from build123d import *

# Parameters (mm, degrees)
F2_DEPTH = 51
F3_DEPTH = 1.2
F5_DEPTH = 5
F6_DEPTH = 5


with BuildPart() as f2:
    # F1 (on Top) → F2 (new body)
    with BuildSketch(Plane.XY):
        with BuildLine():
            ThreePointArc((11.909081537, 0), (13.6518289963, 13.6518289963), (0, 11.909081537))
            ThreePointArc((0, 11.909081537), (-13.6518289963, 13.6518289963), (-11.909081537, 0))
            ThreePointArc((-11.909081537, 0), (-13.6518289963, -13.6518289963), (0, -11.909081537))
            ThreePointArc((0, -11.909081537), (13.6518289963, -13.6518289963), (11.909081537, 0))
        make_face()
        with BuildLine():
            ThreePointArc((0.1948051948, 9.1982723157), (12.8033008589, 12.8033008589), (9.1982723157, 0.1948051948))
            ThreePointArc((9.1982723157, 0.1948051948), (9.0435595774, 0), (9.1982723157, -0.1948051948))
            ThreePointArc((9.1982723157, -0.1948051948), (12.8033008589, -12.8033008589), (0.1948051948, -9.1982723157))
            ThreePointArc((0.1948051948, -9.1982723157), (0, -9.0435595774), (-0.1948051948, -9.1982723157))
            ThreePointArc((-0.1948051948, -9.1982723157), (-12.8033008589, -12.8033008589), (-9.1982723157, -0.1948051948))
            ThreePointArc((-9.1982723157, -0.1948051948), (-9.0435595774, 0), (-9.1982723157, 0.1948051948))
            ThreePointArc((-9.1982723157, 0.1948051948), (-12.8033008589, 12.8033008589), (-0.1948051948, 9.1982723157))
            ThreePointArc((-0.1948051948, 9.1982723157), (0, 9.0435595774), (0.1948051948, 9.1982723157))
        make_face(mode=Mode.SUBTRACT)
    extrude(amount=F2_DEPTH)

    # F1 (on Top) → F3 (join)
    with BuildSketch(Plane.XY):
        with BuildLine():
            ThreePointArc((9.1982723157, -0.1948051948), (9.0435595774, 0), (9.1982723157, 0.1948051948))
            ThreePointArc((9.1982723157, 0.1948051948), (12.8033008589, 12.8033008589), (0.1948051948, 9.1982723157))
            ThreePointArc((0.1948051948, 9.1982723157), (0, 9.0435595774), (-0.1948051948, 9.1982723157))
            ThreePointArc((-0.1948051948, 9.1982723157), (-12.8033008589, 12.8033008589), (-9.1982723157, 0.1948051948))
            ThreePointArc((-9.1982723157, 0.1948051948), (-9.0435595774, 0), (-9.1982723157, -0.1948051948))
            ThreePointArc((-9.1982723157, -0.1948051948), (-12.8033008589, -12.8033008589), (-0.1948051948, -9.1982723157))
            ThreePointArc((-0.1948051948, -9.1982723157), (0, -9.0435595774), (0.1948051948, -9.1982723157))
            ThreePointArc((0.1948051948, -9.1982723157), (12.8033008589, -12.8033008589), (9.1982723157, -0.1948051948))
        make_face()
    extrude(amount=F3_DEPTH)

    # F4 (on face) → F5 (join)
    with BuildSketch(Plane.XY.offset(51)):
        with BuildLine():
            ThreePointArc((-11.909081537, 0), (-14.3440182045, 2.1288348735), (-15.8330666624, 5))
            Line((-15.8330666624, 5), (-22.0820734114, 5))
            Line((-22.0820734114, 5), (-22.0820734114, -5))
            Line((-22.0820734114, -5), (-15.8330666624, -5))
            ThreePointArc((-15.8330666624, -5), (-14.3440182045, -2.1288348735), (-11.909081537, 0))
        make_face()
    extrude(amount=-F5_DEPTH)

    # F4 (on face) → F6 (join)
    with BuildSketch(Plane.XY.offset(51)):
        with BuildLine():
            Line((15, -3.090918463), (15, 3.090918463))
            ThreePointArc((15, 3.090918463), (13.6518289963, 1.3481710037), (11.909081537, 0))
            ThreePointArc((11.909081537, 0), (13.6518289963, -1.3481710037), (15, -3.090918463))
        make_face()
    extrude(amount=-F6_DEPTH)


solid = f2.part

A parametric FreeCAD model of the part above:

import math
import FreeCAD as App
import Part
import Sketcher
from FreeCAD import Vector
Q = App.Units.Quantity

doc = App.newDocument("Part")
body = doc.addObject("PartDesign::Body", "Body")

# Sketch on XY plane
sketch1 = body.newObject("Sketcher::SketchObject", "Sketch")
sketch1.AttachmentSupport = (doc.getObject("XY_Plane"), [""])
sketch1.MapMode = "FlatFace"
sketch1.addGeometry([
    Part.ArcOfCircle(Part.Circle(Vector(7.5, 7.5, 0), Vector(0, 0, 1), 8.7), math.radians(-59.549686), math.radians(149.549686)),  # 0
    Part.ArcOfCircle(Part.Circle(Vector(-7.5, 7.5, 0), Vector(0, 0, 1), 8.7), math.radians(30.450314), math.radians(239.549686)),  # 1
    Part.ArcOfCircle(Part.Circle(Vector(-7.5, -7.5, 0), Vector(0, 0, 1), 8.7), math.radians(120.450314), math.radians(329.549686)),  # 2
    Part.ArcOfCircle(Part.Circle(Vector(7.5, -7.5, 0), Vector(0, 0, 1), 8.7), math.radians(-149.549686), math.radians(59.549686)),  # 3
    Part.ArcOfCircle(Part.Circle(Vector(0, 9.24356, 0), Vector(0, 0, 1), 0.2), math.radians(-166.912648), math.radians(-13.087352)),  # 4
    Part.ArcOfCircle(Part.Circle(Vector(7.5, 7.5, 0), Vector(0, 0, 1), 7.5), math.radians(-76.912647), math.radians(166.912647)),  # 5
    Part.ArcOfCircle(Part.Circle(Vector(9.24356, 0, 0), Vector(0, 0, 1), 0.2), math.radians(103.087352), math.radians(256.912648)),  # 6
    Part.ArcOfCircle(Part.Circle(Vector(7.5, -7.5, 0), Vector(0, 0, 1), 7.5), math.radians(-166.912647), math.radians(76.912647)),  # 7
    Part.ArcOfCircle(Part.Circle(Vector(0, -9.24356, 0), Vector(0, 0, 1), 0.2), math.radians(13.087352), math.radians(166.912648)),  # 8
    Part.ArcOfCircle(Part.Circle(Vector(-7.5, -7.5, 0), Vector(0, 0, 1), 7.5), math.radians(103.087353), math.radians(346.912647)),  # 9
    Part.ArcOfCircle(Part.Circle(Vector(-9.24356, 0, 0), Vector(0, 0, 1), 0.2), math.radians(-76.912648), math.radians(76.912648)),  # 10
    Part.ArcOfCircle(Part.Circle(Vector(-7.5, 7.5, 0), Vector(0, 0, 1), 7.5), math.radians(13.087353), math.radians(256.912647)),  # 11
], False)
sketch1.addConstraint([
    Sketcher.Constraint("Coincident", 0, 2, 1, 1),
    Sketcher.Constraint("Coincident", 1, 2, 2, 1),
    Sketcher.Constraint("Coincident", 2, 2, 3, 1),
    Sketcher.Constraint("Coincident", 3, 2, 0, 1),
    Sketcher.Constraint("Tangent", 4, 2, 5, 2),
    Sketcher.Constraint("Tangent", 5, 1, 6, 1),
    Sketcher.Constraint("Tangent", 6, 2, 7, 2),
    Sketcher.Constraint("Tangent", 7, 1, 8, 1),
    Sketcher.Constraint("Tangent", 8, 2, 9, 2),
    Sketcher.Constraint("Tangent", 9, 1, 10, 1),
    Sketcher.Constraint("Tangent", 10, 2, 11, 2),
    Sketcher.Constraint("Tangent", 11, 1, 4, 1),
    Sketcher.Constraint("Coincident", 5, 3, 0, 3),
    Sketcher.Constraint("Coincident", 7, 3, 3, 3),
    Sketcher.Constraint("Coincident", 9, 3, 2, 3),
    Sketcher.Constraint("Coincident", 11, 3, 1, 3),
    Sketcher.Constraint("Equal", 0, 1),
    Sketcher.Constraint("Equal", 1, 2),
    Sketcher.Constraint("Equal", 2, 3),
    Sketcher.Constraint("Equal", 4, 6),
    Sketcher.Constraint("Equal", 5, 7),
    Sketcher.Constraint("Equal", 6, 8),
    Sketcher.Constraint("Equal", 7, 9),
    Sketcher.Constraint("Equal", 8, 10),
    Sketcher.Constraint("Equal", 9, 11),
    Sketcher.Constraint("Symmetric", 0, 3, 2, 3, -1, 1),
    Sketcher.Constraint("Symmetric", 1, 3, 3, 3, -1, 1),
    Sketcher.Constraint("Symmetric", 0, 3, 1, 3, -2),
    Sketcher.Constraint("Radius", 0, Q("8.7 mm")),
    Sketcher.Constraint("Radius", 4, Q("0.2 mm")),
    Sketcher.Constraint("Radius", 5, Q("7.5 mm")),
    Sketcher.Constraint("DistanceX", 1, 3, 0, 3, Q("15 mm")),
    Sketcher.Constraint("DistanceY", 2, 3, 1, 3, Q("15 mm")),
])
pad1 = body.newObject("PartDesign::Pad", "Pad")
pad1.Profile = sketch1
pad1.Length = 51

# Sketch on XY plane
sketch2 = body.newObject("Sketcher::SketchObject", "Sketch001")
sketch2.AttachmentSupport = (doc.getObject("XY_Plane"), [""])
sketch2.MapMode = "FlatFace"
sketch2.addGeometry([
    Part.ArcOfCircle(Part.Circle(Vector(9.24356, 0, 0), Vector(0, 0, 1), 0.2), math.radians(103.087352), math.radians(256.912648)),  # 0
    Part.ArcOfCircle(Part.Circle(Vector(7.5, 7.5, 0), Vector(0, 0, 1), 7.5), math.radians(-76.912647), math.radians(166.912647)),  # 1
    Part.ArcOfCircle(Part.Circle(Vector(0, 9.24356, 0), Vector(0, 0, 1), 0.2), math.radians(-166.912648), math.radians(-13.087352)),  # 2
    Part.ArcOfCircle(Part.Circle(Vector(-7.5, 7.5, 0), Vector(0, 0, 1), 7.5), math.radians(13.087353), math.radians(256.912647)),  # 3
    Part.ArcOfCircle(Part.Circle(Vector(-9.24356, 0, 0), Vector(0, 0, 1), 0.2), math.radians(-76.912648), math.radians(76.912648)),  # 4
    Part.ArcOfCircle(Part.Circle(Vector(-7.5, -7.5, 0), Vector(0, 0, 1), 7.5), math.radians(103.087353), math.radians(346.912647)),  # 5
    Part.ArcOfCircle(Part.Circle(Vector(0, -9.24356, 0), Vector(0, 0, 1), 0.2), math.radians(13.087352), math.radians(166.912648)),  # 6
    Part.ArcOfCircle(Part.Circle(Vector(7.5, -7.5, 0), Vector(0, 0, 1), 7.5), math.radians(-166.912647), math.radians(76.912647)),  # 7
], False)
sketch2.addConstraint([
    Sketcher.Constraint("Tangent", 0, 1, 1, 1),
    Sketcher.Constraint("Tangent", 1, 2, 2, 2),
    Sketcher.Constraint("Tangent", 2, 1, 3, 1),
    Sketcher.Constraint("Tangent", 3, 2, 4, 2),
    Sketcher.Constraint("Tangent", 4, 1, 5, 1),
    Sketcher.Constraint("Tangent", 5, 2, 6, 2),
    Sketcher.Constraint("Tangent", 6, 1, 7, 1),
    Sketcher.Constraint("Tangent", 7, 2, 0, 2),
    Sketcher.Constraint("Equal", 0, 2),
    Sketcher.Constraint("Equal", 1, 3),
    Sketcher.Constraint("Equal", 2, 4),
    Sketcher.Constraint("Equal", 3, 5),
    Sketcher.Constraint("Equal", 4, 6),
    Sketcher.Constraint("Equal", 5, 7),
    Sketcher.Constraint("Symmetric", 0, 3, 4, 3, -1, 1),
    Sketcher.Constraint("Symmetric", 2, 3, 6, 3, -1, 1),
    Sketcher.Constraint("Symmetric", 1, 3, 3, 3, -2),
    Sketcher.Constraint("Radius", 0, Q("0.2 mm")),
    Sketcher.Constraint("Radius", 1, Q("7.5 mm")),
    Sketcher.Constraint("DistanceX", 3, 3, 1, 3, Q("15 mm")),
    Sketcher.Constraint("DistanceY", 5, 3, 3, 3, Q("15 mm")),
])
pad2 = body.newObject("PartDesign::Pad", "Pad001")
pad2.Profile = sketch2
pad2.Length = 1.2

# Sketch on XY plane
sketch3 = body.newObject("Sketcher::SketchObject", "Sketch002")
sketch3.AttachmentSupport = (doc.getObject("XY_Plane"), [""])
sketch3.MapMode = "FlatFace"
sketch3.AttachmentOffset = App.Placement(Vector(0, 0, 51), App.Rotation())
sketch3.addGeometry([
    Part.ArcOfCircle(Part.Circle(Vector(-7.5, 7.5, 0), Vector(0, 0, 1), 8.7), math.radians(-163.300251), math.radians(-120.450314)),  # 0
    Part.LineSegment(Vector(-15.833067, 5, 0), Vector(-22.082073, 5, 0)),  # 1
    Part.LineSegment(Vector(-22.082073, 5, 0), Vector(-22.082073, -5, 0)),  # 2
    Part.LineSegment(Vector(-22.082073, -5, 0), Vector(-15.833067, -5, 0)),  # 3
    Part.ArcOfCircle(Part.Circle(Vector(-7.5, -7.5, 0), Vector(0, 0, 1), 8.7), math.radians(120.450314), math.radians(163.300251)),  # 4
], False)
sketch3.addConstraint([
    Sketcher.Constraint("Coincident", 0, 1, 1, 1),
    Sketcher.Constraint("Coincident", 1, 2, 2, 1),
    Sketcher.Constraint("Coincident", 2, 2, 3, 1),
    Sketcher.Constraint("Coincident", 3, 2, 4, 2),
    Sketcher.Constraint("Coincident", 4, 1, 0, 2),
    Sketcher.Constraint("Horizontal", 1),
    Sketcher.Constraint("Vertical", 2),
    Sketcher.Constraint("Horizontal", 3),
    Sketcher.Constraint("Equal", 0, 4),
    Sketcher.Constraint("Symmetric", 0, 3, 4, 3, -1),
    Sketcher.Constraint("Vertical", 0, 1, 3, 2),
    Sketcher.Constraint("Radius", 0, Q("8.7 mm")),
    Sketcher.Constraint("DistanceY", 2, 2, 2, 1, Q("10 mm")),
    Sketcher.Constraint("DistanceY", 4, 3, 0, 3, Q("15 mm")),
    Sketcher.Constraint("DistanceX", 0, 3, -1, 1, Q("7.5 mm")),
    Sketcher.Constraint("DistanceX", 1, 2, 1, 1, Q("6.249007 mm")),
])
pad3 = body.newObject("PartDesign::Pad", "Pad002")
pad3.Profile = sketch3
pad3.Length = 5
pad3.Reversed = True

# Sketch on XY plane
sketch4 = body.newObject("Sketcher::SketchObject", "Sketch003")
sketch4.AttachmentSupport = (doc.getObject("XY_Plane"), [""])
sketch4.MapMode = "FlatFace"
sketch4.AttachmentOffset = App.Placement(Vector(0, 0, 51), App.Rotation())
sketch4.addGeometry([
    Part.LineSegment(Vector(15, -3.090918, 0), Vector(15, 3.090918, 0)),
    Part.ArcOfCircle(Part.Circle(Vector(7.5, 7.5, 0), Vector(0, 0, 1), 8.7), math.radians(-59.549686), math.radians(-30.450314)),
    Part.ArcOfCircle(Part.Circle(Vector(7.5, -7.5, 0), Vector(0, 0, 1), 8.7), math.radians(30.450314), math.radians(59.549686)),
], False)
sketch4.addConstraint([
    Sketcher.Constraint("Coincident", 0, 2, 1, 2),
    Sketcher.Constraint("Coincident", 1, 1, 2, 2),
    Sketcher.Constraint("Coincident", 2, 1, 0, 1),
    Sketcher.Constraint("Vertical", 0),
    Sketcher.Constraint("Equal", 1, 2),
    Sketcher.Constraint("Symmetric", 1, 3, 2, 3, -1),
    Sketcher.Constraint("Radius", 1, Q("8.7 mm")),
    Sketcher.Constraint("DistanceX", -1, 1, 0, 2, Q("15 mm")),
    Sketcher.Constraint("DistanceY", 2, 3, 1, 3, Q("15 mm")),
    Sketcher.Constraint("DistanceX", -1, 1, 1, 3, Q("7.5 mm")),
])
pad4 = body.newObject("PartDesign::Pad", "Pad003")
pad4.Profile = sketch4
pad4.Length = 5
pad4.Reversed = True

doc.recompute()
